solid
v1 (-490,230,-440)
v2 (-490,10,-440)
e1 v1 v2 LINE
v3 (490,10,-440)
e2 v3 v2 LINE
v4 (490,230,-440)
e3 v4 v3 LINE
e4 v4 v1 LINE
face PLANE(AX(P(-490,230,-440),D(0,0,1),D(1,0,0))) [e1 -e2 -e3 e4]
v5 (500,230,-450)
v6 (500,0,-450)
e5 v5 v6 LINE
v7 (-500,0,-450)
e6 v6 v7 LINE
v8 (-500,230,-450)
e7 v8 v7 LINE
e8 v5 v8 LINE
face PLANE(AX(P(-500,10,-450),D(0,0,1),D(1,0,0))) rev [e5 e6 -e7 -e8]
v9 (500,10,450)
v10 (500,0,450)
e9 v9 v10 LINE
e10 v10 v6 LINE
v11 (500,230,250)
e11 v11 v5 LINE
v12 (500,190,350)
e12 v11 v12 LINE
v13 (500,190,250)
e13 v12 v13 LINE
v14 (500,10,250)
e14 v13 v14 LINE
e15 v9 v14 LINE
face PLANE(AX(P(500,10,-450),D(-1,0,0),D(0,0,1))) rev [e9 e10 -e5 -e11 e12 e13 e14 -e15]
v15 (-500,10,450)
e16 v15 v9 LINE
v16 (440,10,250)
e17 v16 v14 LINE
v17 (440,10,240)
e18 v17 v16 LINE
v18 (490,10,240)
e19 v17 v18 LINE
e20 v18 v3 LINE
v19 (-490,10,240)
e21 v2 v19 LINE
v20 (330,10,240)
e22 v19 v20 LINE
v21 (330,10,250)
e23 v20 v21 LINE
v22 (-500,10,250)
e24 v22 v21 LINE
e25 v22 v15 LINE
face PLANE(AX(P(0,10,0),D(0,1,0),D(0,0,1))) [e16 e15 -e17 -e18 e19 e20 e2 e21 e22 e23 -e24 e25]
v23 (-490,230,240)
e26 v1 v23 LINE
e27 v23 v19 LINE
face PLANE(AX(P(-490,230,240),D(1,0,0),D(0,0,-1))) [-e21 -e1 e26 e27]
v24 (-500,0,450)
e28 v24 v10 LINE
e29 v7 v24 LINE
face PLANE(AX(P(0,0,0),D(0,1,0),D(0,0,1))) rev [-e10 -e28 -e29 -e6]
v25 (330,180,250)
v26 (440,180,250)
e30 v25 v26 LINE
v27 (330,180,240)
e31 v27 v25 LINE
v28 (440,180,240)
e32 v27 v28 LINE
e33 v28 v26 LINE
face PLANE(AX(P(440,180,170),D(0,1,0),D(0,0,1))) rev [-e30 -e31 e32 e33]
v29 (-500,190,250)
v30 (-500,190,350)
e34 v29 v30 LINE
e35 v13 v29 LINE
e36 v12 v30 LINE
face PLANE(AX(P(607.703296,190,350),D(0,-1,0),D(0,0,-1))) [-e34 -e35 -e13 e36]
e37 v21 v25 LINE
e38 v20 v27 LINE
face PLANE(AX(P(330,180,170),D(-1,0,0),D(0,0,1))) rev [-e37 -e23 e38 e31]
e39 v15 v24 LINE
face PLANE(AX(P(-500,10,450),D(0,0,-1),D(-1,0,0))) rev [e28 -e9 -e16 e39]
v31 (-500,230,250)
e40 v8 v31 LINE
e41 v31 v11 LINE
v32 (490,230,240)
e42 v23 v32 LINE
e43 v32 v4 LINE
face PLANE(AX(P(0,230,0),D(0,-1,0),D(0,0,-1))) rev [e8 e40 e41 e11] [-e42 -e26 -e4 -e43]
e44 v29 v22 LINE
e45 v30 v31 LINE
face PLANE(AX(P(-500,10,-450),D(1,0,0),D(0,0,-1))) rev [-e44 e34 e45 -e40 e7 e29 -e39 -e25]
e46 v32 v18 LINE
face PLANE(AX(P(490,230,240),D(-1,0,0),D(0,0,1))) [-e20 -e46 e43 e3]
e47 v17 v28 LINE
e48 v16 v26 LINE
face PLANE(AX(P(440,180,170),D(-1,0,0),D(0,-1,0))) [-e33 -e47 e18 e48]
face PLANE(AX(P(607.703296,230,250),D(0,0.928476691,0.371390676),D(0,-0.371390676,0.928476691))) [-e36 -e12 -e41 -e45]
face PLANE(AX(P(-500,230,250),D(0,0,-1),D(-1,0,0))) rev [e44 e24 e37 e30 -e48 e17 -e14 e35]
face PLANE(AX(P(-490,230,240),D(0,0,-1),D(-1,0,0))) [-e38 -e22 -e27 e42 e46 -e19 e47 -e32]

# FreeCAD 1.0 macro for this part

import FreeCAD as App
import Part
import Sketcher


def add_polygon(sketch, points):
    """Adds a closed chain of lines whose ends are joined by coincident constraints."""
    first, n = sketch.GeometryCount, len(points)
    for a, b in zip(points, points[1:] + points[:1]):
        sketch.addGeometry(Part.LineSegment(App.Vector(*a, 0), App.Vector(*b, 0)), False)
    for i in range(n):
        sketch.addConstraint(Sketcher.Constraint("Coincident", first + i, 2, first + (i + 1) % n, 1))

doc = App.newDocument("Part")
body = doc.addObject("PartDesign::Body", "Body")

# Sketch on XZ plane
sketch1 = body.newObject("Sketcher::SketchObject", "Sketch")
sketch1.AttachmentSupport = (doc.getObject("XZ_Plane"), [""])
sketch1.MapMode = "FlatFace"
add_polygon(sketch1, [(-500, -450), (-500, 450), (500, 450), (500, -450)])  # lines 0-3
sketch1.addConstraint([
    Sketcher.Constraint("Vertical", 0),
    Sketcher.Constraint("Horizontal", 1),
    Sketcher.Constraint("Vertical", 2),
    Sketcher.Constraint("Horizontal", 3),
    Sketcher.Constraint("Symmetric", 0, 2, 2, 2, -1, 1),
    Sketcher.Constraint("DistanceX", 1, 1, 1, 2, 1000.0),
    Sketcher.Constraint("DistanceY", 0, 1, 0, 2, 900.0),
])
pad1 = body.newObject("PartDesign::Pad", "Pad")
pad1.Profile = sketch1
pad1.Length = 10
pad1.Reversed = True

# Sketch on XZ plane
sketch2 = body.newObject("Sketcher::SketchObject", "Sketch001")
sketch2.AttachmentSupport = (doc.getObject("XZ_Plane"), [""])
sketch2.MapMode = "FlatFace"
sketch2.AttachmentOffset = App.Placement(App.Vector(0, 0, -10), App.Rotation())
add_polygon(sketch2, [(-500, -450), (-500, 250), (500, 250), (500, -450)])  # lines 0-3
add_polygon(sketch2, [(490, 240), (-490, 240), (-490, -440), (490, -440)])  # lines 4-7
sketch2.addConstraint([
    Sketcher.Constraint("Vertical", 0),
    Sketcher.Constraint("Horizontal", 1),
    Sketcher.Constraint("Vertical", 2),
    Sketcher.Constraint("Horizontal", 3),
    Sketcher.Constraint("Horizontal", 4),
    Sketcher.Constraint("Vertical", 5),
    Sketcher.Constraint("Horizontal", 6),
    Sketcher.Constraint("Vertical", 7),
    Sketcher.Constraint("DistanceX", 1, 1, 1, 2, 1000.0),
    Sketcher.Constraint("DistanceX", 4, 2, 4, 1, 980.0),
    Sketcher.Constraint("DistanceY", 0, 1, 0, 2, 700.0),
    Sketcher.Constraint("DistanceY", 5, 2, 5, 1, 680.0),
    Sketcher.Constraint("DistanceX", 0, 2, -1, 1, 500.0),
    Sketcher.Constraint("DistanceY", -1, 1, 0, 2, 250.0),
    Sketcher.Constraint("DistanceX", 4, 2, -1, 1, 490.0),
    Sketcher.Constraint("DistanceY", -1, 1, 4, 2, 240.0),
])
pad2 = body.newObject("PartDesign::Pad", "Pad001")
pad2.Profile = sketch2
pad2.Length = 220
pad2.Reversed = True

# Sketch on XY plane
sketch3 = body.newObject("Sketcher::SketchObject", "Sketch002")
sketch3.AttachmentSupport = (doc.getObject("XY_Plane"), [""])
sketch3.MapMode = "FlatFace"
sketch3.AttachmentOffset = App.Placement(App.Vector(0, 0, 450), App.Rotation())
add_polygon(sketch3, [(330, 180), (330, 10), (440, 10), (440, 180)])  # lines 0-3
sketch3.addConstraint([
    Sketcher.Constraint("Vertical", 0),
    Sketcher.Constraint("Horizontal", 1),
    Sketcher.Constraint("Vertical", 2),
    Sketcher.Constraint("Horizontal", 3),
    Sketcher.Constraint("DistanceX", 1, 1, 1, 2, 110.0),
    Sketcher.Constraint("DistanceY", 0, 2, 0, 1, 170.0),
    Sketcher.Constraint("DistanceX", -1, 1, 0, 2, 330.0),
    Sketcher.Constraint("DistanceY", -1, 1, 0, 2, 10.0),
])
pocket1 = body.newObject("PartDesign::Pocket", "Pocket")
pocket1.Profile = sketch3
pocket1.Length = 280

# Sketch on YZ plane
sketch4 = body.newObject("Sketcher::SketchObject", "Sketch003")
sketch4.AttachmentSupport = (doc.getObject("YZ_Plane"), [""])
sketch4.MapMode = "FlatFace"
sketch4.AttachmentOffset = App.Placement(App.Vector(0, 0, -500), App.Rotation())
add_polygon(sketch4, [(190, 350), (230, 250), (190, 250)])  # lines 0-2
sketch4.addConstraint([
    Sketcher.Constraint("Horizontal", 1),
    Sketcher.Constraint("Vertical", 2),
    Sketcher.Constraint("DistanceX", 1, 2, 1, 1, 40.0),
    Sketcher.Constraint("DistanceY", 2, 1, 2, 2, 100.0),
    Sketcher.Constraint("DistanceX", -1, 1, 0, 2, 230.0),
    Sketcher.Constraint("DistanceY", -1, 1, 0, 2, 250.0),
])
pad3 = body.newObject("PartDesign::Pad", "Pad002")
pad3.Profile = sketch4
pad3.Length = 1000

doc.recompute()
